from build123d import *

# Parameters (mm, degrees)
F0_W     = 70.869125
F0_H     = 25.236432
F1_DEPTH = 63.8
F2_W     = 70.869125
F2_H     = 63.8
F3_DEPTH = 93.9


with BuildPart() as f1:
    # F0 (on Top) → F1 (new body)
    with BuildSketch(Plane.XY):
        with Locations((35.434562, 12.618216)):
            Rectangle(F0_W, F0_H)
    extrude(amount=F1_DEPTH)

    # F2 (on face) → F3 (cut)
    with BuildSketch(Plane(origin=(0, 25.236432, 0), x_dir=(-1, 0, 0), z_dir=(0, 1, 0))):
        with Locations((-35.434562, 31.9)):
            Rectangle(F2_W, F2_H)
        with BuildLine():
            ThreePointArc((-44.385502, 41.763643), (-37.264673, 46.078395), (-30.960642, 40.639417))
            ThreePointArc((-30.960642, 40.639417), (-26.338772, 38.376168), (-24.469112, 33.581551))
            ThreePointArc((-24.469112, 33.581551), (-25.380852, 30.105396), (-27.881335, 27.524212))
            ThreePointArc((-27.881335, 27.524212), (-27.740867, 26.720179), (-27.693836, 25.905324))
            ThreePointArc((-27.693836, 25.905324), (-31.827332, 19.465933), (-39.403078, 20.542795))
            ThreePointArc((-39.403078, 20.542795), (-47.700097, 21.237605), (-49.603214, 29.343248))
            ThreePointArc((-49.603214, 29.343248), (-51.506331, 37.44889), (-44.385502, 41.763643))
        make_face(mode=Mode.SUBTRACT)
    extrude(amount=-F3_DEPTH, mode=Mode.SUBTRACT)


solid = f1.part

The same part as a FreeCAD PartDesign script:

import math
import FreeCAD as App
import Part
import Sketcher
from FreeCAD import Vector


def add_polygon(sketch, points):
    """Adds a closed chain of lines whose ends are joined by coincident constraints."""
    first, n = sketch.GeometryCount, len(points)
    for a, b in zip(points, points[1:] + points[:1]):
        sketch.addGeometry(Part.LineSegment(App.Vector(*a, 0), App.Vector(*b, 0)), False)
    for i in range(n):
        sketch.addConstraint(Sketcher.Constraint("Coincident", first + i, 2, first + (i + 1) % n, 1))

doc = App.newDocument("Part")
body = doc.addObject("PartDesign::Body", "Body")

# Sketch on XY plane
sketch1 = body.newObject("Sketcher::SketchObject", "Sketch")
sketch1.AttachmentSupport = (doc.getObject("XY_Plane"), [""])
sketch1.MapMode = "FlatFace"
add_polygon(sketch1, [(0, 25), (0, 0), (71, 0), (71, 25)])  # lines 0-3
sketch1.addConstraint([
    Sketcher.Constraint("Vertical", 0),
    Sketcher.Constraint("Horizontal", 1),
    Sketcher.Constraint("Vertical", 2),
    Sketcher.Constraint("Horizontal", 3),
    Sketcher.Constraint("Coincident", 0, 2, -1, 1),
    Sketcher.Constraint("DistanceX", 1, 1, 1, 2, 70.869125),
    Sketcher.Constraint("DistanceY", 0, 2, 0, 1, 25.236432),
])
pad1 = body.newObject("PartDesign::Pad", "Pad")
pad1.Profile = sketch1
pad1.Length = 63.8

# Sketch on XZ plane
sketch2 = body.newObject("Sketcher::SketchObject", "Sketch001")
sketch2.AttachmentSupport = (doc.getObject("XZ_Plane"), [""])
sketch2.MapMode = "FlatFace"
sketch2.AttachmentOffset = App.Placement(Vector(0, 0, -25.236432), App.Rotation())
add_polygon(sketch2, [(70.9, 63.8), (70.9, 0), (0, 0), (0, 63.8)])  # lines 0-3
sketch2.addGeometry(Part.ArcOfCircle(Part.Circle(Vector(45, 34.7, 0), Vector(0, 0, 1), 7.1), math.radians(-49), math.radians(95)), False)  # 4
sketch2.addGeometry(Part.ArcOfCircle(Part.Circle(Vector(37.9, 39, 0), Vector(0, 0, 1), 7.1), math.radians(23), math.radians(167)), False)  # 5
sketch2.addGeometry(Part.ArcOfCircle(Part.Circle(Vector(31.6, 33.6, 0), Vector(0, 0, 1), 7.1), math.radians(95), math.radians(180)), False)  # 6
sketch2.addGeometry(Part.ArcOfCircle(Part.Circle(Vector(31.6, 33.6, 0), Vector(0, 0, 1), 7.1), math.radians(-180), math.radians(-121)), False)  # 7
sketch2.addGeometry(Part.ArcOfCircle(Part.Circle(Vector(34.8, 25.9, 0), Vector(0, 0, 1), 7.1), math.radians(166.79), math.radians(180)), False)  # 8
sketch2.addGeometry(Part.ArcOfCircle(Part.Circle(Vector(34.8, 25.9, 0), Vector(0, 0, 1), 7.1), math.radians(-180), math.radians(-49)), False)  # 9
sketch2.addGeometry(Part.ArcOfCircle(Part.Circle(Vector(43.1, 26.6, 0), Vector(0, 0, 1), 7.1), math.radians(-121), math.radians(23)), False)  # 10
sketch2.addConstraint([
    Sketcher.Constraint("Coincident", 4, 2, 5, 1),
    Sketcher.Constraint("Coincident", 5, 2, 6, 1),
    Sketcher.Constraint("Tangent", 6, 2, 7, 1),
    Sketcher.Constraint("Coincident", 7, 2, 8, 1),
    Sketcher.Constraint("Tangent", 8, 2, 9, 1),
    Sketcher.Constraint("Coincident", 9, 2, 10, 1),
    Sketcher.Constraint("Coincident", 10, 2, 4, 1),
    Sketcher.Constraint("Vertical", 0),
    Sketcher.Constraint("Horizontal", 1),
    Sketcher.Constraint("Vertical", 2),
    Sketcher.Constraint("Horizontal", 3),
    Sketcher.Constraint("Coincident", 1, 2, -1, 1),
    Sketcher.Constraint("Equal", 4, 5),
    Sketcher.Constraint("Equal", 6, 7),
    Sketcher.Constraint("Equal", 7, 9),
    Sketcher.Constraint("Equal", 9, 10),
    Sketcher.Constraint("Horizontal", 7, 3, 6, 2),
    Sketcher.Constraint("Horizontal", 9, 3, 8, 2),
    Sketcher.Constraint("DistanceY", 0, 2, 0, 1, 63.8),
    Sketcher.Constraint("Radius", 4, 7.08257),
    Sketcher.Constraint("Radius", 9, 7.082571),
    Sketcher.Constraint("Radius", 8, 7.082596),
    Sketcher.Constraint("DistanceX", -1, 1, 4, 2, 44.385502),
    Sketcher.Constraint("DistanceX", 10, 3, 0, 2, 27.795699),
    Sketcher.Constraint("DistanceX", 8, 2, 7, 2, 0.187499),
    Sketcher.Constraint("DistanceX", 1, 2, 1, 1, 70.869125),
    Sketcher.Constraint("DistanceY", -1, 1, 5, 3, 39.020528),
    Sketcher.Constraint("DistanceY", -1, 1, 6, 3, 33.581548),
    Sketcher.Constraint("DistanceX", -1, 1, 8, 3, 34.776432),
    Sketcher.Constraint("DistanceX", -1, 1, 5, 2, 30.960642),
    Sketcher.Constraint("DistanceY", -1, 1, 7, 2, 27.524212),
    Sketcher.Constraint("DistanceX", -1, 1, 9, 2, 39.403078),
    Sketcher.Constraint("DistanceY", -1, 1, 10, 2, 29.343248),
])
pocket1 = body.newObject("PartDesign::Pocket", "Pocket")
pocket1.Profile = sketch2
pocket1.Length = 93.9
pocket1.Reversed = True

doc.recompute()
